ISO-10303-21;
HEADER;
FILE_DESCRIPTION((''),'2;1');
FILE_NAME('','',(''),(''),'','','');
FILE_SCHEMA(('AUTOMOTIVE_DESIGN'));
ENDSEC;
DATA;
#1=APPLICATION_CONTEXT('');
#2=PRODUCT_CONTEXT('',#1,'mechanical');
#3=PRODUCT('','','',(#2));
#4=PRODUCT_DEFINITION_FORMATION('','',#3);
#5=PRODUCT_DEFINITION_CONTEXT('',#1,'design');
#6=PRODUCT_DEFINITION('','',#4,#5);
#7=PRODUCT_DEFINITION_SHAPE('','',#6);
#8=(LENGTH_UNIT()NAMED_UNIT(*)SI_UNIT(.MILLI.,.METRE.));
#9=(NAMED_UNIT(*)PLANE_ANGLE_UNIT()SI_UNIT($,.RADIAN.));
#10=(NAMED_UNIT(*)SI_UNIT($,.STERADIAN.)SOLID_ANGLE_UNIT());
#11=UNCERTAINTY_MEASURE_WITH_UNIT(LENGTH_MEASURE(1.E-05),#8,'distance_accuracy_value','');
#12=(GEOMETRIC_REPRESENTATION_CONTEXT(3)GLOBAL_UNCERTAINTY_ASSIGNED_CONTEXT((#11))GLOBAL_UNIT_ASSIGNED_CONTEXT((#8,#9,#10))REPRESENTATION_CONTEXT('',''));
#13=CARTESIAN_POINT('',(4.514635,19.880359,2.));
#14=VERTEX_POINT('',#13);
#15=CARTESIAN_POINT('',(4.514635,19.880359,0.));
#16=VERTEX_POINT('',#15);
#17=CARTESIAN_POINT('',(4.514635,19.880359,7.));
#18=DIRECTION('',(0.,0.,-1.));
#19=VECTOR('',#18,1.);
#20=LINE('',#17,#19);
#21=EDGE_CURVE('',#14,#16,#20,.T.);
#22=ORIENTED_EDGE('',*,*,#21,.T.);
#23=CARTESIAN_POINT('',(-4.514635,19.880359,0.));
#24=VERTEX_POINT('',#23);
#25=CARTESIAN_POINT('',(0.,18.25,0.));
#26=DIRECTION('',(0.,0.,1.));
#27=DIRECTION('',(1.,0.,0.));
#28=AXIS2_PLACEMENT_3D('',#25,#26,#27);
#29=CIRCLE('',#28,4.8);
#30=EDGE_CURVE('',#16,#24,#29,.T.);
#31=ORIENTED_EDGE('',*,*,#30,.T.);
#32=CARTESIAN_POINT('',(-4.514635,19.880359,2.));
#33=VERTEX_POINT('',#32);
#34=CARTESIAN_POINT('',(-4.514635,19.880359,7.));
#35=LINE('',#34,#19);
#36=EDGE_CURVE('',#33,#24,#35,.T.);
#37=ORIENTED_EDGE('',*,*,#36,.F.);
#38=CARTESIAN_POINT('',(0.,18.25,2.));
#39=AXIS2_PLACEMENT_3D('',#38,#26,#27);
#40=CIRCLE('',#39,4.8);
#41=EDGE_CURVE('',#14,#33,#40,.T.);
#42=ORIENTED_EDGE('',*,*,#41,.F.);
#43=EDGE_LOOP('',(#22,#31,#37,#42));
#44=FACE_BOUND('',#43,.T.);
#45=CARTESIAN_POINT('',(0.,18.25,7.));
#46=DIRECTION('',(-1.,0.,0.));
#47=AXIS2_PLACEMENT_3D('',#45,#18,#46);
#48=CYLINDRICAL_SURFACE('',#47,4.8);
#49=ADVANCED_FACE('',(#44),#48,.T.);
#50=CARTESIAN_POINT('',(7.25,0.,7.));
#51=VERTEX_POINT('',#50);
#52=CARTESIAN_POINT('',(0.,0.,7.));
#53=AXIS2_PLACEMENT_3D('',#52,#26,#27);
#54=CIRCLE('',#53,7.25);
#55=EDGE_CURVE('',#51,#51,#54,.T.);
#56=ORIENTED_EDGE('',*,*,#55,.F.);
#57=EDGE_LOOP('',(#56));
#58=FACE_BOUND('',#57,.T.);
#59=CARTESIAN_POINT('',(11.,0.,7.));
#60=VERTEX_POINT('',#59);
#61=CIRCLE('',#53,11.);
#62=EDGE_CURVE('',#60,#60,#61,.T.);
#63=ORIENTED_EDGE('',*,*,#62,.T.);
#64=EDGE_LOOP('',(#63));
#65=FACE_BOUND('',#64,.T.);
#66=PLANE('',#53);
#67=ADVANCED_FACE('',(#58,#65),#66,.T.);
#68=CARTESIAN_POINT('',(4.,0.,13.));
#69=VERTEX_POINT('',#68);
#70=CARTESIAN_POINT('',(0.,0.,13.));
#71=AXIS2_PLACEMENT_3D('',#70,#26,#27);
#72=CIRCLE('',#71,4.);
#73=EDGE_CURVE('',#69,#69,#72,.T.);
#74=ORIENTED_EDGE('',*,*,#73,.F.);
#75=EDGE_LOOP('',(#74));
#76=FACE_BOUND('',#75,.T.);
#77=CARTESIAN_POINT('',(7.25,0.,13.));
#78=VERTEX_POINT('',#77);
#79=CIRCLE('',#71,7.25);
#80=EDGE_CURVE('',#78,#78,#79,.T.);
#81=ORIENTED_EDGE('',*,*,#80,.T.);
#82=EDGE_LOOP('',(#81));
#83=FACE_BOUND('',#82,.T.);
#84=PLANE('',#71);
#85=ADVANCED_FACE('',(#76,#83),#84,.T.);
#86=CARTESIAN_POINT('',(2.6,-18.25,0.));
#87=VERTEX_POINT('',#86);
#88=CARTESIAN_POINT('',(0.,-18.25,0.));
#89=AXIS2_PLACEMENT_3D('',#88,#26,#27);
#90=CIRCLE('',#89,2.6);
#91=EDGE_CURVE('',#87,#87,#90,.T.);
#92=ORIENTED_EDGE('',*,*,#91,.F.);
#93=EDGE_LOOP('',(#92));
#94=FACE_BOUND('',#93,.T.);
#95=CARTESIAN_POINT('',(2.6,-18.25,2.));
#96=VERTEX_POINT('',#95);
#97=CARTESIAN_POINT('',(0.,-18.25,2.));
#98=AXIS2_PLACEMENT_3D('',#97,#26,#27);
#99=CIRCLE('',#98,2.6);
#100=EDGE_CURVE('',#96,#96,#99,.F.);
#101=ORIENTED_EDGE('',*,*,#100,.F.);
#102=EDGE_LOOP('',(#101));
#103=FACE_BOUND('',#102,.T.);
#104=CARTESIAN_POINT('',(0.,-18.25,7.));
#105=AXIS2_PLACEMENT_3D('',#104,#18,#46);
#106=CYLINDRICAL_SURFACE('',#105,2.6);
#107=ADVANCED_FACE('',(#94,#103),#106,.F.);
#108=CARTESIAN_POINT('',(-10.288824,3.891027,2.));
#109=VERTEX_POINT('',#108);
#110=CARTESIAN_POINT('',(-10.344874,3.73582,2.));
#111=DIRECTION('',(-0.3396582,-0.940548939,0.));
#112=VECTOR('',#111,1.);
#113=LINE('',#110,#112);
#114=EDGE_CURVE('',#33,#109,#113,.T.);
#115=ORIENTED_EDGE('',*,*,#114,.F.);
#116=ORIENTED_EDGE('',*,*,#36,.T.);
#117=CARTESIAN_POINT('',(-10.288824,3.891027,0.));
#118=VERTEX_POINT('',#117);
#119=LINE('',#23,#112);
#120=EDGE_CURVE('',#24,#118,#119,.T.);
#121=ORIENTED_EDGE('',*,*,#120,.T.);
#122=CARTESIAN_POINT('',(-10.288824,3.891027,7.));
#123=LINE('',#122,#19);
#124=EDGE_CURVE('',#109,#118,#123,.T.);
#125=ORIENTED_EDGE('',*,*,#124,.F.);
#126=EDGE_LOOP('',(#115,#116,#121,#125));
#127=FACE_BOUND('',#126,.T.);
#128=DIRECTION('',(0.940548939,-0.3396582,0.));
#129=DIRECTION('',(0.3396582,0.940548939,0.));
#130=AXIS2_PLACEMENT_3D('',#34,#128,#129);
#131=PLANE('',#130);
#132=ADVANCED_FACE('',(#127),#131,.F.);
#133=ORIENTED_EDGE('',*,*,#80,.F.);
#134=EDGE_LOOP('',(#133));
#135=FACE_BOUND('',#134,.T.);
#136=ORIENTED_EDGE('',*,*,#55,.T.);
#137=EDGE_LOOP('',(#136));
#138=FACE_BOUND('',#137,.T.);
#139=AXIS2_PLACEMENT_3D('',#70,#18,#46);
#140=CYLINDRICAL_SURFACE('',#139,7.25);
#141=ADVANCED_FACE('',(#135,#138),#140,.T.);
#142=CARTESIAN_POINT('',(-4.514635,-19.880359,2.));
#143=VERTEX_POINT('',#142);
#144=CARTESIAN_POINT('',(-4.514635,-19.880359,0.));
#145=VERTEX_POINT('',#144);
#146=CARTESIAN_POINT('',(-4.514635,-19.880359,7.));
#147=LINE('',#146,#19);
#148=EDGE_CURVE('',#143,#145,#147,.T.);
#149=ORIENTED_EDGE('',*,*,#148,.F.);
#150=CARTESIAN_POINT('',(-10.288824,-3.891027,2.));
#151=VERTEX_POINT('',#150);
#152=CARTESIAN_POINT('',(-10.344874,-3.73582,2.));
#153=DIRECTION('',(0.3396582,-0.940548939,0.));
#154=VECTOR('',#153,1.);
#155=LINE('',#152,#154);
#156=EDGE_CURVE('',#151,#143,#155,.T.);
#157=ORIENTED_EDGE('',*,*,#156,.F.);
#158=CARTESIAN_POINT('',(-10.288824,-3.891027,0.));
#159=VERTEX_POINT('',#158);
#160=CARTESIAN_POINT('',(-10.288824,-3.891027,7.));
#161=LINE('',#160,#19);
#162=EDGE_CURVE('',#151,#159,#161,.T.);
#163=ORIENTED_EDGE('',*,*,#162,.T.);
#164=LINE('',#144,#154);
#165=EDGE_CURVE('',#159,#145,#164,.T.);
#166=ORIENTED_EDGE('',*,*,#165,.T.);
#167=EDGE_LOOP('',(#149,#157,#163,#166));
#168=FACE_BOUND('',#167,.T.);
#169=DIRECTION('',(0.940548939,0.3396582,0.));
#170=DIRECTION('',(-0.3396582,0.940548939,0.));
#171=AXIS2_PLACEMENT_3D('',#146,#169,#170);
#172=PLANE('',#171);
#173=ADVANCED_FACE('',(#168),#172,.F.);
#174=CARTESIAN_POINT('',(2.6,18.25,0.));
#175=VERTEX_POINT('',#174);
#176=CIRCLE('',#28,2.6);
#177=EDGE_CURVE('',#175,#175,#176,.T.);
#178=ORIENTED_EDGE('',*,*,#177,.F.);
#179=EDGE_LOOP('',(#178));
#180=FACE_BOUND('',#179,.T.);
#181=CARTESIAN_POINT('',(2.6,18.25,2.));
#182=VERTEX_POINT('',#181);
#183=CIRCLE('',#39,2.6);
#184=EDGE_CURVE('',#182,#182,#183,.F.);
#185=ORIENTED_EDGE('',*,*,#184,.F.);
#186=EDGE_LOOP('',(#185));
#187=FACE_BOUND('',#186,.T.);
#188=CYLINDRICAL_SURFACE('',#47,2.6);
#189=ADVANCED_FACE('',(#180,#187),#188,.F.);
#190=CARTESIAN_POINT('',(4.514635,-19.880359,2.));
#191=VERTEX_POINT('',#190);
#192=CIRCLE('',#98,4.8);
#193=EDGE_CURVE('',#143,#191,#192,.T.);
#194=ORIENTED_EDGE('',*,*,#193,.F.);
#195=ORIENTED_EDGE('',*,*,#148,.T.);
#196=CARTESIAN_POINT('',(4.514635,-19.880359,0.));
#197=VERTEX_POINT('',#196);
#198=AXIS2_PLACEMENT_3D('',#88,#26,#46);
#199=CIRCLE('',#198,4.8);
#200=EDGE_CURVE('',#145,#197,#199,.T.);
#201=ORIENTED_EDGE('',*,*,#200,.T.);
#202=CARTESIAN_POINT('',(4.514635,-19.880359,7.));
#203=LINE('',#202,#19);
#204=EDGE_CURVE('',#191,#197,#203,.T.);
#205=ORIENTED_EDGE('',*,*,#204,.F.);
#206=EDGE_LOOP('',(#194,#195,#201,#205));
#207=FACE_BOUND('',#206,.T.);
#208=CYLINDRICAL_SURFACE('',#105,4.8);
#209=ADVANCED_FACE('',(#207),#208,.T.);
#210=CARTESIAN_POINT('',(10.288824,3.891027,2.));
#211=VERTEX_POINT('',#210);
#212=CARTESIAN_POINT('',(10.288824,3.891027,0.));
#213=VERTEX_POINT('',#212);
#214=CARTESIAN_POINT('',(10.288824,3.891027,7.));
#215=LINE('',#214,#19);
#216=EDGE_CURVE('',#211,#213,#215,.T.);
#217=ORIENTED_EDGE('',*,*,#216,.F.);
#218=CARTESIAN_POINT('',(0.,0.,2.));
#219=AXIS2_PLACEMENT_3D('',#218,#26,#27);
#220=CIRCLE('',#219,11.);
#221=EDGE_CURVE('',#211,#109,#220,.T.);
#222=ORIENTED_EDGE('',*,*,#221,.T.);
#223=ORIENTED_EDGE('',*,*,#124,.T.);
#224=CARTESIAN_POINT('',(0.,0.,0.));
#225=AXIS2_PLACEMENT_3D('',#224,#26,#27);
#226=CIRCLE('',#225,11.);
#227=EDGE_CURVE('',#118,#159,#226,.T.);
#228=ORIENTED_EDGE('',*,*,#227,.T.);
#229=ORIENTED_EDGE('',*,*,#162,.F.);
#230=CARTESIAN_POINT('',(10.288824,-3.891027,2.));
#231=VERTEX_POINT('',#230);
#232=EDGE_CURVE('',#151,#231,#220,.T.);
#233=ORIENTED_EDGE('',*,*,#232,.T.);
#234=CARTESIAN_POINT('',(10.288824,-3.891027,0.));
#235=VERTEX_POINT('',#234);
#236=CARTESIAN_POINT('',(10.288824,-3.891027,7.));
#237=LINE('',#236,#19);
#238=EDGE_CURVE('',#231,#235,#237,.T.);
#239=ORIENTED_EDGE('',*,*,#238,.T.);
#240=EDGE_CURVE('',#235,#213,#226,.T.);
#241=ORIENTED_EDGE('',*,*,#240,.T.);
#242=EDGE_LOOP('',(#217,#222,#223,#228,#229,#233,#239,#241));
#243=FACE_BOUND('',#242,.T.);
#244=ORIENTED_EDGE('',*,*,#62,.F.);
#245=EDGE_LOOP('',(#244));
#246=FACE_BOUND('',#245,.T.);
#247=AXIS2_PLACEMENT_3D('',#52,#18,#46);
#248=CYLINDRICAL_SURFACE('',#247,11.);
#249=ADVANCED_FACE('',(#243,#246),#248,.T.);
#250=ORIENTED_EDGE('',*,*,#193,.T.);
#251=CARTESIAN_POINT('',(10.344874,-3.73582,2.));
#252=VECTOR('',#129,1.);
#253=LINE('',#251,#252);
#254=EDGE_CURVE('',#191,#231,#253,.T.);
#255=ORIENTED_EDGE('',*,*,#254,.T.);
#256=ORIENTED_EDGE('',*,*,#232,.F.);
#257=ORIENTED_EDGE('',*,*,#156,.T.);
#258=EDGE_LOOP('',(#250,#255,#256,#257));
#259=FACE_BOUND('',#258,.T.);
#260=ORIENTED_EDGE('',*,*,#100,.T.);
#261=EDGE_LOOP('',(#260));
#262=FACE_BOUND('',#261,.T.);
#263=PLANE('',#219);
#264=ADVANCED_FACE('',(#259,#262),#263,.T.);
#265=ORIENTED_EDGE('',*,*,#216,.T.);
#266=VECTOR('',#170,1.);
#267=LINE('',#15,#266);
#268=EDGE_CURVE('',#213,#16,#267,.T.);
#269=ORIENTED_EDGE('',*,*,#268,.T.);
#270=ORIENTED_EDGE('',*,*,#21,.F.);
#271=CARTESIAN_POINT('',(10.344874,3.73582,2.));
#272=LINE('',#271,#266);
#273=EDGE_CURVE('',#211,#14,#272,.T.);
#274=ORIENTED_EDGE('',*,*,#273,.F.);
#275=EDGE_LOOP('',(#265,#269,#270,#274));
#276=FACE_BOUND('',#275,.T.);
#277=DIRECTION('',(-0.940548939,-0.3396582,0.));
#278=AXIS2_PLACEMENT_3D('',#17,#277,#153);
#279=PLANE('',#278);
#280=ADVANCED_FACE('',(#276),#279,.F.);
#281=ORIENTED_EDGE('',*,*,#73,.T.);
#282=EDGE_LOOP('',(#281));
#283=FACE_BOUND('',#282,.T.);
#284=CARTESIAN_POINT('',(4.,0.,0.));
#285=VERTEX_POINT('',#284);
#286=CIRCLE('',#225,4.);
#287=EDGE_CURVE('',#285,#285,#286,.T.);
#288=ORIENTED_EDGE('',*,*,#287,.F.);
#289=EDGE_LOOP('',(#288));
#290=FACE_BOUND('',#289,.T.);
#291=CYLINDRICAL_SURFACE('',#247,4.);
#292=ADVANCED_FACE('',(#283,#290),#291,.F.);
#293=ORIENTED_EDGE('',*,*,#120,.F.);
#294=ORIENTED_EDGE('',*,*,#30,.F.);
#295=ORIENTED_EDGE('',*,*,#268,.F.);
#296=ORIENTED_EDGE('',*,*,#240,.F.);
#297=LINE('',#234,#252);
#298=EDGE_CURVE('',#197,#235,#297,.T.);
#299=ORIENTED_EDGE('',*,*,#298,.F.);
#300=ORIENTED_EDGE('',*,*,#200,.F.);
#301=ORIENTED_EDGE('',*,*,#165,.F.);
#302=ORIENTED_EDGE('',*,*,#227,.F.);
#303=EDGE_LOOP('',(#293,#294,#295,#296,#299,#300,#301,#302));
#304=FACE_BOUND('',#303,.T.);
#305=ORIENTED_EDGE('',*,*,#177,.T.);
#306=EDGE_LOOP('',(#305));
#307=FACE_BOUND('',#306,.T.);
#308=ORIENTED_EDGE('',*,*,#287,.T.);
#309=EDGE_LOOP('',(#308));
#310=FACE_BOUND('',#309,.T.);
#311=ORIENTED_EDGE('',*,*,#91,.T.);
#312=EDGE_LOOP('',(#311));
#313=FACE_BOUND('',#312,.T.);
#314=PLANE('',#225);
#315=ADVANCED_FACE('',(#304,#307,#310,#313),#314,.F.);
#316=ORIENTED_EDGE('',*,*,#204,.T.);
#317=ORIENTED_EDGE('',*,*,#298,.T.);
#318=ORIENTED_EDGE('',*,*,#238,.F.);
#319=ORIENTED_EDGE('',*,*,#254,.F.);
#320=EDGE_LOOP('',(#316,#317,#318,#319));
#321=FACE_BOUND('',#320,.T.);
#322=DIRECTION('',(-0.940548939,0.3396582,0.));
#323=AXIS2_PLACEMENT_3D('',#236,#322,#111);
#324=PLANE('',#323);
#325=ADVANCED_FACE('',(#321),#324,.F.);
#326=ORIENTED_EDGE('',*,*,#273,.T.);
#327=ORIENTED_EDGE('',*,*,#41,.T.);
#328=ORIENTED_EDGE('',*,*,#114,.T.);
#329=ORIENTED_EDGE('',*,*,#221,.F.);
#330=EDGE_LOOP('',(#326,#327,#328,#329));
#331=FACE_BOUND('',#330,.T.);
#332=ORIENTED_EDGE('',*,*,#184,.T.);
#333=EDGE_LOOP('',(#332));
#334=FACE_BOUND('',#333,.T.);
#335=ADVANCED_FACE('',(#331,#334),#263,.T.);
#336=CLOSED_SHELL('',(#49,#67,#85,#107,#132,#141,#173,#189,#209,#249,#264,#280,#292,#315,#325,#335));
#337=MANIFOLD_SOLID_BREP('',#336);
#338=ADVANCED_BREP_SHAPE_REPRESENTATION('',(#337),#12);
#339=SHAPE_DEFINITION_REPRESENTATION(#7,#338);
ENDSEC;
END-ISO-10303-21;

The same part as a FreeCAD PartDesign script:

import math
import FreeCAD as App
import Part
import Sketcher
from FreeCAD import Vector

doc = App.newDocument("Part")
params = doc.addObject("Spreadsheet::Sheet", "Params")
for row, (alias, value) in enumerate([
    ("sketch1_diameter", "8 mm"),
    ("sketch1_radius", "11 mm"),
    ("sketch1_diameter2", "5.2 mm"),
    ("sketch1_radius2", "4.8 mm"),
    ("sketch1_length", "17 mm"),
    ("pad1_length", "7 mm"),
    ("sketch2_radius", "11 mm"),
    ("sketch2_diameter", "5.2 mm"),
    ("sketch2_radius2", "4.8 mm"),
    ("sketch2_length", "17 mm"),
    ("pocket1_length", "5 mm"),
    ("sketch3_diameter", "8 mm"),
    ("sketch3_diameter2", "14.5 mm"),
    ("pad2_length", "6 mm"),
], start=1):
    params.set(f"A{row}", alias)
    params.set(f"B{row}", "=" + value)
    params.setAlias(f"B{row}", alias)

body = doc.addObject("PartDesign::Body", "Body")

# Sketch on XY plane
sketch1 = body.newObject("Sketcher::SketchObject", "Sketch")
sketch1.AttachmentSupport = (doc.getObject("XY_Plane"), [""])
sketch1.MapMode = "FlatFace"
sketch1.addGeometry(Part.LineSegment(Vector(4.514635, -19.880359, 0), Vector(10.288824, -3.891027, 0)), False)
sketch1.addGeometry(Part.ArcOfCircle(Part.Circle(Vector(0, 0, 0), Vector(0, 0, 1), 11), math.radians(-20.715615), math.radians(20.715615)), False)
sketch1.addGeometry(Part.LineSegment(Vector(10.288824, 3.891027, 0), Vector(4.514635, 19.880359, 0)), False)
sketch1.addGeometry(Part.ArcOfCircle(Part.Circle(Vector(0, 18.25, 0), Vector(0, 0, 1), 4.8), math.radians(19.856051), math.radians(160.143949)), False)
sketch1.addGeometry(Part.LineSegment(Vector(-4.514635, 19.880359, 0), Vector(-10.288824, 3.891027, 0)), False)
sketch1.addGeometry(Part.ArcOfCircle(Part.Circle(Vector(0, 0, 0), Vector(0, 0, 1), 11), math.radians(159.284385), math.radians(200.715615)), False)
sketch1.addGeometry(Part.LineSegment(Vector(-10.288824, -3.891027, 0), Vector(-4.514635, -19.880359, 0)), False)
sketch1.addGeometry(Part.ArcOfCircle(Part.Circle(Vector(0, -18.25, 0), Vector(0, 0, 1), 4.8), math.radians(-160.143949), math.radians(-19.856051)), False)
sketch1.addGeometry(Part.Circle(Vector(0, -18.25, 0), Vector(0, 0, 1), 2.6), False)
sketch1.addGeometry(Part.Circle(Vector(0, 0, 0), Vector(0, 0, 1), 4), False)
sketch1.addGeometry(Part.Circle(Vector(0, 18.25, 0), Vector(0, 0, 1), 2.6), False)
sketch1.addConstraint(Sketcher.Constraint("Coincident", 0, 2, 1, 1))
sketch1.addConstraint(Sketcher.Constraint("Coincident", 1, 2, 2, 1))
sketch1.addConstraint(Sketcher.Constraint("Tangent", 2, 2, 3, 1))
sketch1.addConstraint(Sketcher.Constraint("Tangent", 3, 2, 4, 1))
sketch1.addConstraint(Sketcher.Constraint("Coincident", 4, 2, 5, 1))
sketch1.addConstraint(Sketcher.Constraint("Coincident", 5, 2, 6, 1))
sketch1.addConstraint(Sketcher.Constraint("Tangent", 6, 2, 7, 1))
sketch1.addConstraint(Sketcher.Constraint("Tangent", 7, 2, 0, 1))
sketch1.addConstraint(Sketcher.Constraint("Coincident", 1, 3, -1, 1))
sketch1.addConstraint(Sketcher.Constraint("Coincident", 5, 3, -1, 1))
sketch1.addConstraint(Sketcher.Constraint("Coincident", 9, 3, -1, 1))
sketch1.addConstraint(Sketcher.Constraint("Coincident", 8, 3, 7, 3))
sketch1.addConstraint(Sketcher.Constraint("Coincident", 10, 3, 3, 3))
sketch1.addConstraint(Sketcher.Constraint("Equal", 1, 5))
sketch1.addConstraint(Sketcher.Constraint("Equal", 3, 7))
sketch1.addConstraint(Sketcher.Constraint("Equal", 8, 10))
sketch1.addConstraint(Sketcher.Constraint("Symmetric", 3, 3, 7, 3, -1, 1))
sketch1.addConstraint(Sketcher.Constraint("PointOnObject", 3, 3, -2))
sketch1.addConstraint(Sketcher.Constraint("Parallel", 0, 4))
sketch1.addConstraint(Sketcher.Constraint("Parallel", 2, 6))
sketch1.addConstraint(Sketcher.Constraint("Horizontal", 1, 2, 4, 2))
sketch1.addConstraint(Sketcher.Constraint("Diameter", 9, 8.0))
sketch1.addConstraint(Sketcher.Constraint("Radius", 1, 11.0))
sketch1.addConstraint(Sketcher.Constraint("Diameter", 8, 5.2))
sketch1.addConstraint(Sketcher.Constraint("Radius", 3, 4.8))
sketch1.addConstraint(Sketcher.Constraint("Distance", 0, 17.0))
sketch1.addConstraint(Sketcher.Constraint("DistanceY", 7, 3, 3, 3, 36.5))
sketch1.setExpression("Constraints[21]", "Params.sketch1_diameter")
sketch1.setExpression("Constraints[22]", "Params.sketch1_radius")
sketch1.setExpression("Constraints[23]", "Params.sketch1_diameter2")
sketch1.setExpression("Constraints[24]", "Params.sketch1_radius2")
sketch1.setExpression("Constraints[25]", "Params.sketch1_length")
pad1 = body.newObject("PartDesign::Pad", "Pad")
pad1.Profile = sketch1
pad1.setExpression("Length", "Params.pad1_length")

# Sketch on XY plane
sketch2 = body.newObject("Sketcher::SketchObject", "Sketch001")
sketch2.AttachmentSupport = (doc.getObject("XY_Plane"), [""])
sketch2.MapMode = "FlatFace"
sketch2.AttachmentOffset = App.Placement(Vector(0, 0, 7), App.Rotation())
sketch2.addGeometry(Part.LineSegment(Vector(-4.514635, 19.880359, 0), Vector(-10.288824, 3.891027, 0)), False)
sketch2.addGeometry(Part.ArcOfCircle(Part.Circle(Vector(0, 0, 0), Vector(0, 0, 1), 11), math.radians(20.715615), math.radians(159.284385)), False)
sketch2.addGeometry(Part.LineSegment(Vector(10.288824, 3.891027, 0), Vector(4.514635, 19.880359, 0)), False)
sketch2.addGeometry(Part.ArcOfCircle(Part.Circle(Vector(0, 18.25, 0), Vector(0, 0, 1), 4.8), math.radians(19.856051), math.radians(160.143949)), False)
sketch2.addGeometry(Part.Circle(Vector(0, 18.25, 0), Vector(0, 0, 1), 2.6), False)
sketch2.addGeometry(Part.ArcOfCircle(Part.Circle(Vector(0, 0, 0), Vector(0, 0, 1), 11), math.radians(-159.284385), math.radians(-20.715615)), False)
sketch2.addGeometry(Part.LineSegment(Vector(-10.288824, -3.891027, 0), Vector(-4.514635, -19.880359, 0)), False)
sketch2.addGeometry(Part.ArcOfCircle(Part.Circle(Vector(0, -18.25, 0), Vector(0, 0, 1), 4.8), math.radians(-160.143949), math.radians(-19.856051)), False)
sketch2.addGeometry(Part.LineSegment(Vector(4.514635, -19.880359, 0), Vector(10.288824, -3.891027, 0)), False)
sketch2.addGeometry(Part.Circle(Vector(0, -18.25, 0), Vector(0, 0, 1), 2.6), False)
sketch2.addConstraint(Sketcher.Constraint("Coincident", 0, 2, 1, 2))
sketch2.addConstraint(Sketcher.Constraint("Coincident", 1, 1, 2, 1))
sketch2.addConstraint(Sketcher.Constraint("Tangent", 2, 2, 3, 1))
sketch2.addConstraint(Sketcher.Constraint("Tangent", 3, 2, 0, 1))
sketch2.addConstraint(Sketcher.Constraint("Coincident", 5, 1, 6, 1))
sketch2.addConstraint(Sketcher.Constraint("Tangent", 6, 2, 7, 1))
sketch2.addConstraint(Sketcher.Constraint("Tangent", 7, 2, 8, 1))
sketch2.addConstraint(Sketcher.Constraint("Coincident", 8, 2, 5, 2))
sketch2.addConstraint(Sketcher.Constraint("Coincident", 1, 3, -1, 1))
sketch2.addConstraint(Sketcher.Constraint("Coincident", 5, 3, -1, 1))
sketch2.addConstraint(Sketcher.Constraint("Coincident", 4, 3, 3, 3))
sketch2.addConstraint(Sketcher.Constraint("Coincident", 9, 3, 7, 3))
sketch2.addConstraint(Sketcher.Constraint("Equal", 1, 5))
sketch2.addConstraint(Sketcher.Constraint("Equal", 3, 7))
sketch2.addConstraint(Sketcher.Constraint("Equal", 4, 9))
sketch2.addConstraint(Sketcher.Constraint("Symmetric", 3, 3, 7, 3, -1, 1))
sketch2.addConstraint(Sketcher.Constraint("PointOnObject", 3, 3, -2))
sketch2.addConstraint(Sketcher.Constraint("Parallel", 2, 6))
sketch2.addConstraint(Sketcher.Constraint("Parallel", 0, 8))
sketch2.addConstraint(Sketcher.Constraint("Horizontal", 0, 2, 1, 1))
sketch2.addConstraint(Sketcher.Constraint("Radius", 1, 11.0))
sketch2.addConstraint(Sketcher.Constraint("Diameter", 4, 5.2))
sketch2.addConstraint(Sketcher.Constraint("Radius", 3, 4.8))
sketch2.addConstraint(Sketcher.Constraint("Distance", 0, 17.0))
sketch2.addConstraint(Sketcher.Constraint("DistanceY", 7, 3, 3, 3, 36.5))
sketch2.setExpression("Constraints[20]", "Params.sketch2_radius")
sketch2.setExpression("Constraints[21]", "Params.sketch2_diameter")
sketch2.setExpression("Constraints[22]", "Params.sketch2_radius2")
sketch2.setExpression("Constraints[23]", "Params.sketch2_length")
pocket1 = body.newObject("PartDesign::Pocket", "Pocket")
pocket1.Profile = sketch2
pocket1.setExpression("Length", "Params.pocket1_length")

# Sketch on XY plane
sketch3 = body.newObject("Sketcher::SketchObject", "Sketch002")
sketch3.AttachmentSupport = (doc.getObject("XY_Plane"), [""])
sketch3.MapMode = "FlatFace"
sketch3.AttachmentOffset = App.Placement(Vector(0, 0, 7), App.Rotation())
sketch3.addGeometry(Part.Circle(Vector(0, 0, 0), Vector(0, 0, 1), 7.25), False)
sketch3.addGeometry(Part.Circle(Vector(0, 0, 0), Vector(0, 0, 1), 4), False)
sketch3.addConstraint(Sketcher.Constraint("Coincident", 0, 3, -1, 1))
sketch3.addConstraint(Sketcher.Constraint("Coincident", 1, 3, -1, 1))
sketch3.addConstraint(Sketcher.Constraint("Diameter", 1, 8.0))
sketch3.addConstraint(Sketcher.Constraint("Diameter", 0, 14.5))
sketch3.setExpression("Constraints[2]", "Params.sketch3_diameter")
sketch3.setExpression("Constraints[3]", "Params.sketch3_diameter2")
pad2 = body.newObject("PartDesign::Pad", "Pad001")
pad2.Profile = sketch3
pad2.setExpression("Length", "Params.pad2_length")

doc.recompute()
